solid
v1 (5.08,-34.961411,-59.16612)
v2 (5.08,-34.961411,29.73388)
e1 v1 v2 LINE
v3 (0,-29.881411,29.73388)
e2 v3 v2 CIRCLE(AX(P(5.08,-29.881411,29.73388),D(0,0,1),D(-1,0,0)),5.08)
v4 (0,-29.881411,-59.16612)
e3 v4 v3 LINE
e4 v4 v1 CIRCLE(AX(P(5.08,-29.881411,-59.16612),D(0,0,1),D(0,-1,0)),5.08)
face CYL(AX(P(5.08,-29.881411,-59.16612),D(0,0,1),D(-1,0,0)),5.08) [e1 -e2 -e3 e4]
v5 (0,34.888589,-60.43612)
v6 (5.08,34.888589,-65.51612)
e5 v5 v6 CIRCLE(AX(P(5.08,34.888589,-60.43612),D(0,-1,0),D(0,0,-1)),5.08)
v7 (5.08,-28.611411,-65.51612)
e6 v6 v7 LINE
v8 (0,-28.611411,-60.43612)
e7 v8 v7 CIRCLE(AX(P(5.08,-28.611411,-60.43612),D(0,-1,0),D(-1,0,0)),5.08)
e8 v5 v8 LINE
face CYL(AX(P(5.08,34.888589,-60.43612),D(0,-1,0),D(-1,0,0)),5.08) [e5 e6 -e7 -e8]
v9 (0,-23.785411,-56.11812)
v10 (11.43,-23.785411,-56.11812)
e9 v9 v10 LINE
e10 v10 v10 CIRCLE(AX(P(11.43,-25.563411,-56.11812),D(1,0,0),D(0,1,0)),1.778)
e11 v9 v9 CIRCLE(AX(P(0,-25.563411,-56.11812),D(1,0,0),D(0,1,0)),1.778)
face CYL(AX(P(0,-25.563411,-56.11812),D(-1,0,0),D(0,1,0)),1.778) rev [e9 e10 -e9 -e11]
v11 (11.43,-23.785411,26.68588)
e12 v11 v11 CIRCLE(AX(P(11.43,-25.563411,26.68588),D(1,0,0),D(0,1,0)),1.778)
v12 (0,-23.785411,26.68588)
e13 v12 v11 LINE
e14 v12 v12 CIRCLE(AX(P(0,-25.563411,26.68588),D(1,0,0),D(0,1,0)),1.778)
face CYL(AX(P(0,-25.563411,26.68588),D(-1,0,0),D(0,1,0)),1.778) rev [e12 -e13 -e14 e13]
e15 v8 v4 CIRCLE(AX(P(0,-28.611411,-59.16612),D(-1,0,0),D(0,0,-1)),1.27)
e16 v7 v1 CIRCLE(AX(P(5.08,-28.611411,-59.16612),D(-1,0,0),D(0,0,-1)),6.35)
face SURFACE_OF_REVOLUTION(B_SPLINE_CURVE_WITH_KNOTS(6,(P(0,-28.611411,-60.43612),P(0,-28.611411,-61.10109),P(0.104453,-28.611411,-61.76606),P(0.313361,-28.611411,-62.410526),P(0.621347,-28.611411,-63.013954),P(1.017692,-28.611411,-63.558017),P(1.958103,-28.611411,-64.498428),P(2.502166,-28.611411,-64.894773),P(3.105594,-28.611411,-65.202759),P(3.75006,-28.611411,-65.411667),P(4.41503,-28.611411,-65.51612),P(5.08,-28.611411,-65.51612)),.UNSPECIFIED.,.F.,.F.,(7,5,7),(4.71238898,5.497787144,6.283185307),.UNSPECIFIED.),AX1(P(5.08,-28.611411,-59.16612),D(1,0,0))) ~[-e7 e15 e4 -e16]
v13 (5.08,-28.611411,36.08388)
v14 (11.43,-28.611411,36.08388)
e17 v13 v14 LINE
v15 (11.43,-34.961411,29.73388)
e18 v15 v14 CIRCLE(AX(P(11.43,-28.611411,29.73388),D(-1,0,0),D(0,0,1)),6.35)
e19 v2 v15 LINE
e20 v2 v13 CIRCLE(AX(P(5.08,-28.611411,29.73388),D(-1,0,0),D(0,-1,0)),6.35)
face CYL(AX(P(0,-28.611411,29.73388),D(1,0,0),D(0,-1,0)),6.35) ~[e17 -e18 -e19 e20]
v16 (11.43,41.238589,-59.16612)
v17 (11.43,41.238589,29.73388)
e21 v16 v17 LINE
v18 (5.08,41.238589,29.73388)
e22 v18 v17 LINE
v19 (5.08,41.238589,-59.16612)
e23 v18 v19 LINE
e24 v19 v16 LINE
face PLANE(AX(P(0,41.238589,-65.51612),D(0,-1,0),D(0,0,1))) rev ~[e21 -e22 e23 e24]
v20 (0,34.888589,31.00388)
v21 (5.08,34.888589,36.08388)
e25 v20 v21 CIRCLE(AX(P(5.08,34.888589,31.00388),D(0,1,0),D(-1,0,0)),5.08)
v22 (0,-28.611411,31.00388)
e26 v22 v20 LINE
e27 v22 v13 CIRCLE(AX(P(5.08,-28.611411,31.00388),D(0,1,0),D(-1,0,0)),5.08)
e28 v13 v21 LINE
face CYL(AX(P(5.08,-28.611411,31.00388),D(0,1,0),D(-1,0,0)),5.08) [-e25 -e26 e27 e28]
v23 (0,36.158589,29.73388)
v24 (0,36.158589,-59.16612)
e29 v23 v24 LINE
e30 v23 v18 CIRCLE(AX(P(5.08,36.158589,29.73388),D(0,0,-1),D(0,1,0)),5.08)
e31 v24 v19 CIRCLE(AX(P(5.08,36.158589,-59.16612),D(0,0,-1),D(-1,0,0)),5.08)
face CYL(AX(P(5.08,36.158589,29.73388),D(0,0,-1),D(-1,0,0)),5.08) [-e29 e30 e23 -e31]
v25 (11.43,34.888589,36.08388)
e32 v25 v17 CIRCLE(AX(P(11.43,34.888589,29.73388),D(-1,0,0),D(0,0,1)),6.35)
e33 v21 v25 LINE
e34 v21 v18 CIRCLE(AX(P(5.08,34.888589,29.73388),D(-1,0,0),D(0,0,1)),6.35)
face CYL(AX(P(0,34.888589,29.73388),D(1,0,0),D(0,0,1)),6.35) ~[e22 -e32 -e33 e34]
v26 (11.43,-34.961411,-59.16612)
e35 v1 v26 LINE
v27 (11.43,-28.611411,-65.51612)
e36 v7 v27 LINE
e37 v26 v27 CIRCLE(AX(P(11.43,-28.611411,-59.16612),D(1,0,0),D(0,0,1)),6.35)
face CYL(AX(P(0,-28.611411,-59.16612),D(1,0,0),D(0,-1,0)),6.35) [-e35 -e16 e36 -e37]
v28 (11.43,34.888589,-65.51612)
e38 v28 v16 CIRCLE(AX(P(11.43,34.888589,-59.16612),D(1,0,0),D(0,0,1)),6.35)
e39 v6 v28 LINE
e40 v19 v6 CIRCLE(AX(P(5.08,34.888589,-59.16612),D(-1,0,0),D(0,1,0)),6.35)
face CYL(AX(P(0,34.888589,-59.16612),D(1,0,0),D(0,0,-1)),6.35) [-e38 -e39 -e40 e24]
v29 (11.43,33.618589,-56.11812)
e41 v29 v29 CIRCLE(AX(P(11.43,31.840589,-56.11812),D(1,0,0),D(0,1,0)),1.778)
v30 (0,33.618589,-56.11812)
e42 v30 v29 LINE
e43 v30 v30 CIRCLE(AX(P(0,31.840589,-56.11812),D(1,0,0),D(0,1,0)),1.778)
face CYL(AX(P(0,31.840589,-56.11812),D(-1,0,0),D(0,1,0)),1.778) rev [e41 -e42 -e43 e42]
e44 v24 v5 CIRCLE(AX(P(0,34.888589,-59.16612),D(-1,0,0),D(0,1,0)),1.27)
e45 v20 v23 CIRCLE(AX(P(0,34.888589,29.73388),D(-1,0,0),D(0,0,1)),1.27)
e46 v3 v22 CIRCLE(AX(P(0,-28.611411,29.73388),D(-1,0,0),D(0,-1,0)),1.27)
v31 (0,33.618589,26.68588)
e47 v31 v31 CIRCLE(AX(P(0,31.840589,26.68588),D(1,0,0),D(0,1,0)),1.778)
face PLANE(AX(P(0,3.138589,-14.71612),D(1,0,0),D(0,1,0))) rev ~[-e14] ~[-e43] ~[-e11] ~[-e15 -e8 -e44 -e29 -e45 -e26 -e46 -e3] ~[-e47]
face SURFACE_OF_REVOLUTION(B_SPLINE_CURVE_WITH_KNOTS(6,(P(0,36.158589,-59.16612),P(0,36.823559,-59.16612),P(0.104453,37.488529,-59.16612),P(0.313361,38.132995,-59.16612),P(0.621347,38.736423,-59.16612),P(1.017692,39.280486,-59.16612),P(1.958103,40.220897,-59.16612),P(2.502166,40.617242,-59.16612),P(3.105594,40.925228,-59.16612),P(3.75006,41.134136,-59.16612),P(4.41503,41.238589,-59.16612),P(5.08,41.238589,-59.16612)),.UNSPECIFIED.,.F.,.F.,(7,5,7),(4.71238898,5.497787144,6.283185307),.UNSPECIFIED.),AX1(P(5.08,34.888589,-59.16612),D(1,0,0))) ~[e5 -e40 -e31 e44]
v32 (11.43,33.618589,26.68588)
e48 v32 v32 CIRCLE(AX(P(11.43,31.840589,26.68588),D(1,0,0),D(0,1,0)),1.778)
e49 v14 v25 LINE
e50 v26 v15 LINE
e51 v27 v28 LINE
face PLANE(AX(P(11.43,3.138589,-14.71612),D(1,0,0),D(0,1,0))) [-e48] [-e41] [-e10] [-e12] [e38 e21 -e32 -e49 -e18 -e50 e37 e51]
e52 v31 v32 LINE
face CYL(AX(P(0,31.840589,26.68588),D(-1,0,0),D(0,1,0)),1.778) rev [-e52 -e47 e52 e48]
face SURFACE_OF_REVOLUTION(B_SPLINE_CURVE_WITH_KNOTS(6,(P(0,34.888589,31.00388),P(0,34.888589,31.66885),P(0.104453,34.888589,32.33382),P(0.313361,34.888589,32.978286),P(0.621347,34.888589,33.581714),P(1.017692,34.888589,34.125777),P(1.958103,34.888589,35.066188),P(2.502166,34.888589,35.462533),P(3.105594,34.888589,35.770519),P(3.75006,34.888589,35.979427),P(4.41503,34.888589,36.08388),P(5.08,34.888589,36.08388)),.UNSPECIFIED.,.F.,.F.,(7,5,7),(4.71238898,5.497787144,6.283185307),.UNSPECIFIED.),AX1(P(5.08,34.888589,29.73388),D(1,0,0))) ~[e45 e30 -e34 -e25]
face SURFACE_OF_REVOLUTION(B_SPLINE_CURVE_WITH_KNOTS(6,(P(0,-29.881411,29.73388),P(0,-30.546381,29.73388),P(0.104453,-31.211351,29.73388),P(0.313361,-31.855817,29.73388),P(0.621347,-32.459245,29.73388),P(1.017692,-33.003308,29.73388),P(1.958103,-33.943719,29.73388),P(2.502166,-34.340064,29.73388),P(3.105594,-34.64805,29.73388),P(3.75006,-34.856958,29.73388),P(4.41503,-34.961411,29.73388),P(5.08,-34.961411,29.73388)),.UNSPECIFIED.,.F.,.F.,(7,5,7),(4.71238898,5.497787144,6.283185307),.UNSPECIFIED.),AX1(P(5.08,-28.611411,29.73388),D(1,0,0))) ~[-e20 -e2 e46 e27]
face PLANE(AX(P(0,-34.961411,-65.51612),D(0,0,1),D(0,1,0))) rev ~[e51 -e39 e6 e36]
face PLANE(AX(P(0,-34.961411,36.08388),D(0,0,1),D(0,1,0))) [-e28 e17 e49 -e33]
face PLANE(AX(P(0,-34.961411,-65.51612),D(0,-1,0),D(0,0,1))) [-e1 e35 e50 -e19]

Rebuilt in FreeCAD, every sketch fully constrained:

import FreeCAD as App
import Part
import Sketcher
from FreeCAD import Vector
Q = App.Units.Quantity


def edges_at(feature, points):
    """Names of the edges that pass closest to the given points."""
    edges = feature.Shape.Edges
    near = lambda p: min(range(len(edges)), key=lambda i: edges[i].distToShape(Part.Vertex(*p))[0])
    return sorted({f"Edge{near(p) + 1}" for p in points})

doc = App.newDocument("Part")
body = doc.addObject("PartDesign::Body", "Body")

# Sketch on YZ plane
sketch1 = body.newObject("Sketcher::SketchObject", "Sketch")
sketch1.AttachmentSupport = (doc.getObject("YZ_Plane"), [""])
sketch1.MapMode = "FlatFace"
sketch1.addGeometry(Part.LineSegment(Vector(-35, 36.1, 0), Vector(-35, -65.5, 0)), False)
sketch1.addGeometry(Part.LineSegment(Vector(-35, -65.5, 0), Vector(41.2, -65.5, 0)), False)
sketch1.addGeometry(Part.LineSegment(Vector(41.2, -65.5, 0), Vector(41.2, 36.1, 0)), False)
sketch1.addGeometry(Part.LineSegment(Vector(41.2, 36.1, 0), Vector(-35, 36.1, 0)), False)
sketch1.addGeometry(Part.Circle(Vector(-25.6, -56.1, 0), Vector(0, 0, 1), 1.8), False)
sketch1.addGeometry(Part.Circle(Vector(31.8, -56.1, 0), Vector(0, 0, 1), 1.8), False)
sketch1.addGeometry(Part.Circle(Vector(-25.6, 26.7, 0), Vector(0, 0, 1), 1.8), False)
sketch1.addGeometry(Part.Circle(Vector(31.8, 26.7, 0), Vector(0, 0, 1), 1.8), False)
sketch1.addConstraint(Sketcher.Constraint("Coincident", 0, 2, 1, 1))
sketch1.addConstraint(Sketcher.Constraint("Coincident", 1, 2, 2, 1))
sketch1.addConstraint(Sketcher.Constraint("Coincident", 2, 2, 3, 1))
sketch1.addConstraint(Sketcher.Constraint("Coincident", 3, 2, 0, 1))
sketch1.addConstraint(Sketcher.Constraint("Vertical", 0))
sketch1.addConstraint(Sketcher.Constraint("Horizontal", 1))
sketch1.addConstraint(Sketcher.Constraint("Vertical", 2))
sketch1.addConstraint(Sketcher.Constraint("Horizontal", 3))
sketch1.addConstraint(Sketcher.Constraint("Equal", 4, 5))
sketch1.addConstraint(Sketcher.Constraint("Equal", 5, 6))
sketch1.addConstraint(Sketcher.Constraint("Equal", 6, 7))
sketch1.addConstraint(Sketcher.Constraint("Horizontal", 4, 3, 5, 3))
sketch1.addConstraint(Sketcher.Constraint("Horizontal", 6, 3, 7, 3))
sketch1.addConstraint(Sketcher.Constraint("Vertical", 4, 3, 6, 3))
sketch1.addConstraint(Sketcher.Constraint("Vertical", 5, 3, 7, 3))
sketch1.addConstraint(Sketcher.Constraint("Diameter", 4, Q("0.14 in")))
sketch1.addConstraint(Sketcher.Constraint("DistanceX", 1, 1, 1, 2, Q("3 in")))
sketch1.addConstraint(Sketcher.Constraint("DistanceY", 0, 2, 0, 1, Q("4 in")))
sketch1.addConstraint(Sketcher.Constraint("DistanceX", 4, 3, 5, 3, Q("2.26 in")))
sketch1.addConstraint(Sketcher.Constraint("DistanceY", 4, 3, 6, 3, Q("3.26 in")))
sketch1.addConstraint(Sketcher.Constraint("DistanceX", 0, 2, 4, 3, Q("0.37 in")))
sketch1.addConstraint(Sketcher.Constraint("DistanceY", 0, 2, 4, 3, Q("0.37 in")))
sketch1.addConstraint(Sketcher.Constraint("DistanceX", 4, 3, -1, 1, Q("25.563411 mm")))
sketch1.addConstraint(Sketcher.Constraint("DistanceY", 4, 3, -1, 1, Q("56.11812 mm")))
pad1 = body.newObject("PartDesign::Pad", "Pad")
pad1.Profile = sketch1
pad1.Length = Q("0.45 in")
doc.recompute()

fillet = body.newObject("PartDesign::Fillet", "Fillet")
fillet.Base = (pad1, edges_at(pad1, [
    (5.715, 41.239, 36.084),
    (5.715, 41.239, -65.516),
    (5.715, -34.961, 36.084),
    (5.715, -34.961, -65.516),
]))
fillet.Radius = Q("0.25 in")
doc.recompute()

fillet2 = body.newObject("PartDesign::Fillet", "Fillet001")
fillet2.Base = (fillet, edges_at(fillet, [(0, 3.139, 36.084)]))
fillet2.Radius = Q("0.2 in")

doc.recompute()
